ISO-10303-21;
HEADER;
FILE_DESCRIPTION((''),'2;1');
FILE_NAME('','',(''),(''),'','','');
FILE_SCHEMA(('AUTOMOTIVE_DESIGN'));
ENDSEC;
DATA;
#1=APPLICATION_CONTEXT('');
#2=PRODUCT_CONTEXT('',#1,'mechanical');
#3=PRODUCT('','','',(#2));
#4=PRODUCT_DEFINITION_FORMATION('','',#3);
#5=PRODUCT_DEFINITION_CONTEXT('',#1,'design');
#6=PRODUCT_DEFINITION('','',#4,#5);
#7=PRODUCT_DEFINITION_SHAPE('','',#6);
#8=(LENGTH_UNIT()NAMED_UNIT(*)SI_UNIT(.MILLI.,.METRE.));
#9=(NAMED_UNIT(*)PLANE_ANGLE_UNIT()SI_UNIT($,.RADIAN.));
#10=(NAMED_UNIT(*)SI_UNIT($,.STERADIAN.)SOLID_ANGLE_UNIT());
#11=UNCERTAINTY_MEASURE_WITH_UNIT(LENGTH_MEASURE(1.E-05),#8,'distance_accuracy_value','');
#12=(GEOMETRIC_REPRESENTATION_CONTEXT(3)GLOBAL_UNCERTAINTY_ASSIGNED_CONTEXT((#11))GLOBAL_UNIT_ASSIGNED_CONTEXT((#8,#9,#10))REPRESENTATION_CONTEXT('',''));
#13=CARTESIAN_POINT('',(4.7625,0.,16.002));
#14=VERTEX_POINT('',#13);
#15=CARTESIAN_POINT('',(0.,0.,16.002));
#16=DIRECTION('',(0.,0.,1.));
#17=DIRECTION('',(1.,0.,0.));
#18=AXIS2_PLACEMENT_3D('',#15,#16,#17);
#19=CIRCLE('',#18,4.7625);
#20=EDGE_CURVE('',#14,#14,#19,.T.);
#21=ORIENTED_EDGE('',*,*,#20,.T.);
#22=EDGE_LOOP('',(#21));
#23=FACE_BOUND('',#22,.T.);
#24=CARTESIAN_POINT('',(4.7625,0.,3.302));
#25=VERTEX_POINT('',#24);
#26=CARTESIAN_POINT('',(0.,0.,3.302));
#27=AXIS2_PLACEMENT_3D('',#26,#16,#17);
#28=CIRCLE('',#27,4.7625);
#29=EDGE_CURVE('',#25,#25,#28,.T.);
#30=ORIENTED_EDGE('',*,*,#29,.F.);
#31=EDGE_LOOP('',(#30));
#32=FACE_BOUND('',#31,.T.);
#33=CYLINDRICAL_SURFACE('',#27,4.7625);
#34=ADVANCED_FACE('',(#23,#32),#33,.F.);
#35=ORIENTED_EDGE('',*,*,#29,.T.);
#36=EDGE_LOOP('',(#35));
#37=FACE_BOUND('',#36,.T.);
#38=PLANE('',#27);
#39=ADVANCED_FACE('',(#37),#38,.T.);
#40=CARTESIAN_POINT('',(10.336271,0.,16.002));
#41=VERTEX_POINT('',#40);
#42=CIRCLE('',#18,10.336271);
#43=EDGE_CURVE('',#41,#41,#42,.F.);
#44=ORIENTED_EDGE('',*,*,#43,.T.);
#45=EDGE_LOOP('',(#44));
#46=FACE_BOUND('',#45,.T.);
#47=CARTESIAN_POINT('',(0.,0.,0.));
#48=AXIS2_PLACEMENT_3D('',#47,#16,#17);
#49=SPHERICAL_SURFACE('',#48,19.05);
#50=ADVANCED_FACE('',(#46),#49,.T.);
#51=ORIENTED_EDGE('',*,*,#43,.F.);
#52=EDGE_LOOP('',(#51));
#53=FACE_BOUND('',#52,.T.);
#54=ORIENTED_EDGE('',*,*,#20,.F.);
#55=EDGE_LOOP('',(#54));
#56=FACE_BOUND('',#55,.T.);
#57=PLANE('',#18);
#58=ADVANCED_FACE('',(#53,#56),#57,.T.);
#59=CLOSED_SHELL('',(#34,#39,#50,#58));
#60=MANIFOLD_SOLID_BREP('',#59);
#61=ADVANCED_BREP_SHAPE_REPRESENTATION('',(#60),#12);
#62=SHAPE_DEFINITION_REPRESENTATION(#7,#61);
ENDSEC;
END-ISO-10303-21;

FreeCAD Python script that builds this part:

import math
import FreeCAD as App
import Part
import Sketcher
from FreeCAD import Vector
Q = App.Units.Quantity


def add_polygon(sketch, points):
    """Adds a closed chain of lines whose ends are joined by coincident constraints."""
    first, n = sketch.GeometryCount, len(points)
    for a, b in zip(points, points[1:] + points[:1]):
        sketch.addGeometry(Part.LineSegment(App.Vector(*a, 0), App.Vector(*b, 0)), False)
    for i in range(n):
        sketch.addConstraint(Sketcher.Constraint("Coincident", first + i, 2, first + (i + 1) % n, 1))

doc = App.newDocument("Part")
body = doc.addObject("PartDesign::Body", "Body")

# Sketch on XZ plane
sketch1 = doc.addObject("Sketcher::SketchObject", "Sketch")
body.addObject(sketch1)
sketch1.AttachmentSupport = (doc.XZ_Plane, [""])
sketch1.MapMode = "FlatFace"
sketch1.addGeometry(Part.ArcOfCircle(Part.Circle(Vector(0, 0, 0), Vector(0, 0, 1), 19.05), math.radians(0), math.radians(180)), False)
sketch1.addGeometry(Part.LineSegment(Vector(19.05, 0, 0), Vector(-19.05, 0, 0)), False)
sketch1.addConstraint(Sketcher.Constraint("Coincident", 0, 1, 1, 1))
sketch1.addConstraint(Sketcher.Constraint("Coincident", 1, 2, 0, 2))
sketch1.addConstraint(Sketcher.Constraint("Horizontal", 1))
sketch1.addConstraint(Sketcher.Constraint("Coincident", 0, 3, -1, 1))
sketch1.addConstraint(Sketcher.Constraint("PointOnObject", 0, 1, -1))
sketch1.addConstraint(Sketcher.Constraint("Radius", 0, Q("0.75 in")))
revolution = doc.addObject("PartDesign::Revolution", "Revolution")
body.addObject(revolution)
revolution.Profile = sketch1
revolution.ReferenceAxis = (sketch1, ["H_Axis"])
revolution.Angle = 360

# Sketch on XY plane
sketch2 = doc.addObject("Sketcher::SketchObject", "Sketch001")
body.addObject(sketch2)
sketch2.AttachmentSupport = (doc.XY_Plane, [""])
sketch2.MapMode = "FlatFace"
sketch2.AttachmentOffset = App.Placement(Vector(0, 0, 0.63 * 25.4), App.Rotation())
add_polygon(sketch2, [(-18.512815, 14.676826), (-18.512815, -14.676826), (18.512815, -14.676826), (18.512815, 14.676826)])  # lines 0-3
sketch2.addConstraint(Sketcher.Constraint("Vertical", 0))
sketch2.addConstraint(Sketcher.Constraint("Horizontal", 1))
sketch2.addConstraint(Sketcher.Constraint("Vertical", 2))
sketch2.addConstraint(Sketcher.Constraint("Horizontal", 3))
sketch2.addConstraint(Sketcher.Constraint("Symmetric", 0, 2, 2, 2, -1, 1))
sketch2.addConstraint(Sketcher.Constraint("DistanceX", 1, 1, 1, 2, 37.025629))
sketch2.addConstraint(Sketcher.Constraint("DistanceY", 0, 2, 0, 1, 29.353652))
pocket1 = doc.addObject("PartDesign::Pocket", "Pocket")
body.addObject(pocket1)
pocket1.Profile = sketch2
pocket1.Length = Q("0.12 in")
pocket1.Reversed = True

# Sketch on XY plane
sketch3 = doc.addObject("Sketcher::SketchObject", "Sketch002")
body.addObject(sketch3)
sketch3.AttachmentSupport = (doc.XY_Plane, [""])
sketch3.MapMode = "FlatFace"
sketch3.AttachmentOffset = App.Placement(Vector(0, 0, 0.63 * 25.4), App.Rotation())
sketch3.addGeometry(Part.Circle(Vector(0, 0, 0), Vector(0, 0, 1), 4.7625), False)
sketch3.addConstraint(Sketcher.Constraint("Coincident", 0, 3, -1, 1))
sketch3.addConstraint(Sketcher.Constraint("Diameter", 0, Q("0.375 in")))
pocket2 = doc.addObject("PartDesign::Pocket", "Pocket001")
body.addObject(pocket2)
pocket2.Profile = sketch3
pocket2.Length = Q("0.5 in")

doc.recompute()
